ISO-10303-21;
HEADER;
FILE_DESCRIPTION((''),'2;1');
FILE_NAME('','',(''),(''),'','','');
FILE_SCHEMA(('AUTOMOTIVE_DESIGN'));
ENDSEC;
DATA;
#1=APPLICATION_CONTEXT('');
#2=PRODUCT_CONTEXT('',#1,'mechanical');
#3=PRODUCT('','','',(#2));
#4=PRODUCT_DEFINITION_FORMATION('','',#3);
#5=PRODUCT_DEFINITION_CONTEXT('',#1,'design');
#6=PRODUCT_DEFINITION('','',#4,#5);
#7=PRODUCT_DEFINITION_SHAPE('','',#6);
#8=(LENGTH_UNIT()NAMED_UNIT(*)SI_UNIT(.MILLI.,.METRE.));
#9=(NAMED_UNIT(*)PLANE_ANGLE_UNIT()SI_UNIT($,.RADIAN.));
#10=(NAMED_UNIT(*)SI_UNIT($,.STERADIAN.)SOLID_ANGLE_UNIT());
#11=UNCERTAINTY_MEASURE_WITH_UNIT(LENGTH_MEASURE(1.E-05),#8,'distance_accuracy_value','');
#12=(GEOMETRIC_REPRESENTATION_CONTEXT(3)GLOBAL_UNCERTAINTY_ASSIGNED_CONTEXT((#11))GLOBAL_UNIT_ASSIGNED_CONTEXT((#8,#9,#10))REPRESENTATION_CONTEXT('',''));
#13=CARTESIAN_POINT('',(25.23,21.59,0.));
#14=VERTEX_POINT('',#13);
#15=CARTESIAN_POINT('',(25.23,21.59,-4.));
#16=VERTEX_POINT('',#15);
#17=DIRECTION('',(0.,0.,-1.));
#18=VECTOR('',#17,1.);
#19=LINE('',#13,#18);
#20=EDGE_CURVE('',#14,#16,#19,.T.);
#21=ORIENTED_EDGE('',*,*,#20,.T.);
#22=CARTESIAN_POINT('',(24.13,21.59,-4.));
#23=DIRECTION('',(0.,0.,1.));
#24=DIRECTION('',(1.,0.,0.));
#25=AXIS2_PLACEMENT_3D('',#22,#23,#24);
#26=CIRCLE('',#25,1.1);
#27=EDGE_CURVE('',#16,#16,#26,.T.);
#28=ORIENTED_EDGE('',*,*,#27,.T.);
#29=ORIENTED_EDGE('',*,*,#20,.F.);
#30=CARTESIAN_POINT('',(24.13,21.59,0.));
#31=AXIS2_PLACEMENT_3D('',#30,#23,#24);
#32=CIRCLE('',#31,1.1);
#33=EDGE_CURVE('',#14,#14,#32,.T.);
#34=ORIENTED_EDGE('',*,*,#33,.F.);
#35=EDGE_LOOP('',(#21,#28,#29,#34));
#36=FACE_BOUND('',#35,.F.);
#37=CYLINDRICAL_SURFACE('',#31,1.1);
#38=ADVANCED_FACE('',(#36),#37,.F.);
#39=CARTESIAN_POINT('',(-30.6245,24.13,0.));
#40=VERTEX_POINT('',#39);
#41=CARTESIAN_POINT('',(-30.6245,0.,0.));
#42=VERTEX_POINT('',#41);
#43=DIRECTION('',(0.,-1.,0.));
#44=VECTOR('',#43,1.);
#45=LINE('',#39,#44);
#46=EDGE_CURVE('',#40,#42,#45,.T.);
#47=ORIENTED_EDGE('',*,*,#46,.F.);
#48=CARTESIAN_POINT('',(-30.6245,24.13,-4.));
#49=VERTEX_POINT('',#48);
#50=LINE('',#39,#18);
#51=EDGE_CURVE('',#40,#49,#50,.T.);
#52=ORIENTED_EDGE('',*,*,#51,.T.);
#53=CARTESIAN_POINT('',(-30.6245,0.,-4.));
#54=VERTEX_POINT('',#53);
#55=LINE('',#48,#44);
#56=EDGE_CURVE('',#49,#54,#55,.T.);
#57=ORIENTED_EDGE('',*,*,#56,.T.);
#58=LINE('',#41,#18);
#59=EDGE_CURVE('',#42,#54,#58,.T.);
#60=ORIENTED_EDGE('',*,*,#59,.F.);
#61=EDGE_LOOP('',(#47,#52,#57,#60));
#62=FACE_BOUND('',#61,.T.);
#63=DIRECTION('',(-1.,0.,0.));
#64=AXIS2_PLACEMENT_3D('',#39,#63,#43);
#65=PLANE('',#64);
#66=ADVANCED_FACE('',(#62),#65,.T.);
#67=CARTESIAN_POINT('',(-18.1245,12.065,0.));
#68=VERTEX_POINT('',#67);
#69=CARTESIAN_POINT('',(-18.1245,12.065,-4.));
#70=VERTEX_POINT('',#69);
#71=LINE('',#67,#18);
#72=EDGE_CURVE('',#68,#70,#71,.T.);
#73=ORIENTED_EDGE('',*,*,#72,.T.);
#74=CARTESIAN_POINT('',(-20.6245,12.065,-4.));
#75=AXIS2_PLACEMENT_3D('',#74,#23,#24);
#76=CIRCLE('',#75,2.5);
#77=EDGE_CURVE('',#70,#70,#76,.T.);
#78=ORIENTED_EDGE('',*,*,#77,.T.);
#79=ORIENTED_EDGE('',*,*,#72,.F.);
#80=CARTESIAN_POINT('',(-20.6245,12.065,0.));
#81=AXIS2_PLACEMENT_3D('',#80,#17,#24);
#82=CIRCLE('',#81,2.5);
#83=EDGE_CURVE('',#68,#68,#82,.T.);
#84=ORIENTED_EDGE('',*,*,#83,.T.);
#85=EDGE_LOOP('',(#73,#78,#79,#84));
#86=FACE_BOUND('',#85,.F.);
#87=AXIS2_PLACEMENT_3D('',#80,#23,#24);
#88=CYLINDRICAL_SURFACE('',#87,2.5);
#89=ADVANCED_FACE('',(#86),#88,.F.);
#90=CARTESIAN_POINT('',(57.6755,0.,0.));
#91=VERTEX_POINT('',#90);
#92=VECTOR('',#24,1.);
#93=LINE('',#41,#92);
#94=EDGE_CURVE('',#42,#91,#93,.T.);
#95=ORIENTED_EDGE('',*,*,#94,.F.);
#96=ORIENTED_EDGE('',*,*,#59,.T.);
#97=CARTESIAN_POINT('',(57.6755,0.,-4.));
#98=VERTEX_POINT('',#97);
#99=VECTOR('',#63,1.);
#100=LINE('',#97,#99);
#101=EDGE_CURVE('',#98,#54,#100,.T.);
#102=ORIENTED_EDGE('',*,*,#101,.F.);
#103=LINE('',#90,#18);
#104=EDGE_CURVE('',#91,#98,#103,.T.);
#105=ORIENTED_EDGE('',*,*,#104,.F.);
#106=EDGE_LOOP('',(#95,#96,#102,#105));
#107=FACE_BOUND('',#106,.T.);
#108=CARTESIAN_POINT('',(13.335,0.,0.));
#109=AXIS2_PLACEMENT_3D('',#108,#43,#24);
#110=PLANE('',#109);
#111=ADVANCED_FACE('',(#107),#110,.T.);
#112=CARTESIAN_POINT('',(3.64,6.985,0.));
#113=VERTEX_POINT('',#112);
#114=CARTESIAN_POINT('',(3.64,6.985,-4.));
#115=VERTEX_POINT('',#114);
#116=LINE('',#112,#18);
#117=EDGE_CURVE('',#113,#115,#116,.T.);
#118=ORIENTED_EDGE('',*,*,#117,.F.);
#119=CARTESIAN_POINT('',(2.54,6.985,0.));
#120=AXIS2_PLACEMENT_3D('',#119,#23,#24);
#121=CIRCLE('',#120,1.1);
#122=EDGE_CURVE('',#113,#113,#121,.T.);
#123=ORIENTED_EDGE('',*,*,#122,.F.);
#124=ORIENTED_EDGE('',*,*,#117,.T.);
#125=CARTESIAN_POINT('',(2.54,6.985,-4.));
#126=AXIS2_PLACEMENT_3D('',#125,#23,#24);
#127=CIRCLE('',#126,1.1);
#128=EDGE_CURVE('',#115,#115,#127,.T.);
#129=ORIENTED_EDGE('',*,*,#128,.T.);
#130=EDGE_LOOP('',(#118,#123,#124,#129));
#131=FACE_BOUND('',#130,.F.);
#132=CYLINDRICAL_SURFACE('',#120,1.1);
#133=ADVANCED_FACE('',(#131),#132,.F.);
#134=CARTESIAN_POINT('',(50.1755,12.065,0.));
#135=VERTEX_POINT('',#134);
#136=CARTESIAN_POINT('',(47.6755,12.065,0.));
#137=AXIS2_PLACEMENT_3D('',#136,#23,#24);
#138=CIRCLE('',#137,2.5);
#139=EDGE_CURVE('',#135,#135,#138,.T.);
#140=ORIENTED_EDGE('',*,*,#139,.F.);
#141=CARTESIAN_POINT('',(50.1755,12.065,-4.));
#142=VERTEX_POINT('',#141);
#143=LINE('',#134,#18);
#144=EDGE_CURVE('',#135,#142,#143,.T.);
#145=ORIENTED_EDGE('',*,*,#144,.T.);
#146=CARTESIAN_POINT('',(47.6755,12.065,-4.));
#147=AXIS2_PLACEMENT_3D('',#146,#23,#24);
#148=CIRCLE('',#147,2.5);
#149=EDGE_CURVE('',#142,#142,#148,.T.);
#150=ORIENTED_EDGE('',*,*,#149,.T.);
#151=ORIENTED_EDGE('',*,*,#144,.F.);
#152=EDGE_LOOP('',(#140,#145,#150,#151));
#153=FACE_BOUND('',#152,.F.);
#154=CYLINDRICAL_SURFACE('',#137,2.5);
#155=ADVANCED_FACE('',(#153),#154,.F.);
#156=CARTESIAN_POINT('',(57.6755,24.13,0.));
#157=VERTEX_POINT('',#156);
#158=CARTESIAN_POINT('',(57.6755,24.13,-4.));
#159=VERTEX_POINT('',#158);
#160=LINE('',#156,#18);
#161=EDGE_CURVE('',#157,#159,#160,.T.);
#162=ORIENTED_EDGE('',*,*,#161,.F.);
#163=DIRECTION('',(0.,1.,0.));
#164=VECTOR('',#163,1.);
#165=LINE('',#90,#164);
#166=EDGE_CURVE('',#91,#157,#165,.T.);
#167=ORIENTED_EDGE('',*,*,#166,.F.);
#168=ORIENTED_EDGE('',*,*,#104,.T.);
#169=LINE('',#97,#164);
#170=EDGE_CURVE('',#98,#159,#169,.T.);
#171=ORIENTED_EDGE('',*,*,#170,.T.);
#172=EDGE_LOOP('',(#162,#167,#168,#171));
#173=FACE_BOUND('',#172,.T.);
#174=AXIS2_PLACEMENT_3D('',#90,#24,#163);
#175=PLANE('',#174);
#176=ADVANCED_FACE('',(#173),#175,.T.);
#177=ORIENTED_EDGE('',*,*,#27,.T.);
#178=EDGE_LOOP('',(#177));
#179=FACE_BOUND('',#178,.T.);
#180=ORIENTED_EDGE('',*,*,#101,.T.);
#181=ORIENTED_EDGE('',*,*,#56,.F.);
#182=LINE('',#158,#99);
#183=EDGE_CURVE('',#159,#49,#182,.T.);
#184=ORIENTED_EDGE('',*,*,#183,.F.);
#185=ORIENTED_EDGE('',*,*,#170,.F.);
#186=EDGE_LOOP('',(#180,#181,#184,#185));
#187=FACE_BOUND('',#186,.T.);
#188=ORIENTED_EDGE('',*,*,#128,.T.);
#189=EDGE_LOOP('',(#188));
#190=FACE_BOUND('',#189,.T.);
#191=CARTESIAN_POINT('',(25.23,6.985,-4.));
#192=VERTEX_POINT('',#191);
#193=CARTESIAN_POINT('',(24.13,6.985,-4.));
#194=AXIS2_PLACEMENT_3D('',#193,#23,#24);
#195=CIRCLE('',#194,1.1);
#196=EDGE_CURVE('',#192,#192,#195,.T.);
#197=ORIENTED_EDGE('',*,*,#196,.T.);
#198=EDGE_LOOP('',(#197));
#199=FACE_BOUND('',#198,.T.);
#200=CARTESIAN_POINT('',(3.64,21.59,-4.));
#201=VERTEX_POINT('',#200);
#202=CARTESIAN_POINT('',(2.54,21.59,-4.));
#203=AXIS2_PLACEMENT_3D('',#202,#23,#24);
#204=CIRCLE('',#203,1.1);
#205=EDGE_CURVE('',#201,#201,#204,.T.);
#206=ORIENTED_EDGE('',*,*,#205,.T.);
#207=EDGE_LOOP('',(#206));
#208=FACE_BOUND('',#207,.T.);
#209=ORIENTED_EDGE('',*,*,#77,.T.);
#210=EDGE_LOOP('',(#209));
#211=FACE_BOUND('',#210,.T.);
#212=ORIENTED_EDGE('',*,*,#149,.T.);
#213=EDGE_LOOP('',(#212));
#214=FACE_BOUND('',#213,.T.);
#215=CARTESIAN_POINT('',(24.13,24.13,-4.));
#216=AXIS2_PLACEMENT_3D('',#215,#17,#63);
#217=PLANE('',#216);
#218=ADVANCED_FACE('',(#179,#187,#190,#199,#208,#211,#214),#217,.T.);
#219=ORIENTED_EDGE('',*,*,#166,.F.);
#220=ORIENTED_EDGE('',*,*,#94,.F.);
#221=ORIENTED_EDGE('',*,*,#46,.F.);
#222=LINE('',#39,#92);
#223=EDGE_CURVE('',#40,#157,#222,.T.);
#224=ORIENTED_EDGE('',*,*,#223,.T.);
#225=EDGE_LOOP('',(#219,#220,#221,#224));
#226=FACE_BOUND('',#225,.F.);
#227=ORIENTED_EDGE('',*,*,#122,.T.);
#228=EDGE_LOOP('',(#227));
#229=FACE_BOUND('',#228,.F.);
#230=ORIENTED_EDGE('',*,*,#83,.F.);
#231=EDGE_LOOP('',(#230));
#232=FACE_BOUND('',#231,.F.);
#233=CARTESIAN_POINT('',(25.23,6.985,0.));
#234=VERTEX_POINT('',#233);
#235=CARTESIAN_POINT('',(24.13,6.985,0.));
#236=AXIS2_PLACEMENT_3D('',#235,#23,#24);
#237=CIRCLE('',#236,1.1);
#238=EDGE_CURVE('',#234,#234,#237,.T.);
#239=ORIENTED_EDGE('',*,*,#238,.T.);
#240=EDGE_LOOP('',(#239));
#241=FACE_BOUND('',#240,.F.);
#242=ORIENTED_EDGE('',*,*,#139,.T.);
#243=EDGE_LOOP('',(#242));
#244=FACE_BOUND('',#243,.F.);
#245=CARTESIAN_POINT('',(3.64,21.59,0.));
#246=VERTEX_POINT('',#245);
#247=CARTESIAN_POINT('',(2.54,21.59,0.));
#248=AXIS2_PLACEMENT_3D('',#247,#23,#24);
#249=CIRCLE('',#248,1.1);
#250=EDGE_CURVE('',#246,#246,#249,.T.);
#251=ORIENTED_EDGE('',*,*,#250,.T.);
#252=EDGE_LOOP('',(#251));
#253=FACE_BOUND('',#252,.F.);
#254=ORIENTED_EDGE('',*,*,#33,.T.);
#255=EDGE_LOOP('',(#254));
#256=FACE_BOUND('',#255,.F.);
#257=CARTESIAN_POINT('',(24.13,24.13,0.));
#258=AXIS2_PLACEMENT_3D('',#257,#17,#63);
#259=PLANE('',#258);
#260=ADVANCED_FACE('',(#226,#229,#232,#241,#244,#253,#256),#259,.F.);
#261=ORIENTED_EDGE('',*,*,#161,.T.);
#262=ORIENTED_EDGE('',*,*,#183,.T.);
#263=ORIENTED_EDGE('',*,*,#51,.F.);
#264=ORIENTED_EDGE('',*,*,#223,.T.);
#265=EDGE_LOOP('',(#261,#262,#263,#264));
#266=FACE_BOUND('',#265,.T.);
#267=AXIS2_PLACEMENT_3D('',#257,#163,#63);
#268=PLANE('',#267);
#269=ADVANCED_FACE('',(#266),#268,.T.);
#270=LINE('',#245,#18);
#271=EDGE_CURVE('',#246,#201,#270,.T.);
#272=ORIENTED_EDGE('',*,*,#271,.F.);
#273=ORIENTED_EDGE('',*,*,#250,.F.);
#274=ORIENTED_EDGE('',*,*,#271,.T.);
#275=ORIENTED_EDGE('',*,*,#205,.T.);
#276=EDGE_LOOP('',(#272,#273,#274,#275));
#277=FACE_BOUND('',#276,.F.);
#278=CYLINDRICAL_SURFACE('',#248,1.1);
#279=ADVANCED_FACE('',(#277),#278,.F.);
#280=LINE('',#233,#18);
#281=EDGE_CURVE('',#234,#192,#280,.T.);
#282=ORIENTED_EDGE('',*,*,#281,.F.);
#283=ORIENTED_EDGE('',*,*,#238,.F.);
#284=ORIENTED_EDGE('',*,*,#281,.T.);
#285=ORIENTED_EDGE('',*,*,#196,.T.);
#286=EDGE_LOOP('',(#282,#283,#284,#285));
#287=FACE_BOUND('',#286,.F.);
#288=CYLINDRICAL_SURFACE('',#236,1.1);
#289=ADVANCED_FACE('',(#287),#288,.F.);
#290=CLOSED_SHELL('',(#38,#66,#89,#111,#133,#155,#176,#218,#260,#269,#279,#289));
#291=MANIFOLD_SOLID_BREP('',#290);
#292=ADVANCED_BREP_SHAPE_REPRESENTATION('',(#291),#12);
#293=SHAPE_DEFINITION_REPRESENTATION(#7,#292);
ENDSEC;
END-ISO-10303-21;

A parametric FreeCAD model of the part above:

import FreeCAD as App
import Part
import Sketcher
Q = App.Units.Quantity

doc = App.newDocument("Part")
body = doc.addObject("PartDesign::Body", "Body")

sketch1 = body.newObject("Sketcher::SketchObject", "Sketch")
sketch1.AttachmentSupport = (doc.getObject("XY_Plane"), [""])
sketch1.MapMode = "FlatFace"
sketch1.addGeometry(Part.LineSegment(App.Vector(58, 24, 0), App.Vector(58, 0, 0)), False)
sketch1.addGeometry(Part.LineSegment(App.Vector(58, 0, 0), App.Vector(-31, 0, 0)), False)
sketch1.addGeometry(Part.LineSegment(App.Vector(-31, 0, 0), App.Vector(-31, 24, 0)), False)
sketch1.addGeometry(Part.LineSegment(App.Vector(-31, 24, 0), App.Vector(58, 24, 0)), False)
sketch1.addConstraint(Sketcher.Constraint("Coincident", 0, 2, 1, 1))
sketch1.addConstraint(Sketcher.Constraint("Coincident", 1, 2, 2, 1))
sketch1.addConstraint(Sketcher.Constraint("Coincident", 2, 2, 3, 1))
sketch1.addConstraint(Sketcher.Constraint("Coincident", 3, 2, 0, 1))
sketch1.addConstraint(Sketcher.Constraint("Vertical", 0))
sketch1.addConstraint(Sketcher.Constraint("Horizontal", 1))
sketch1.addConstraint(Sketcher.Constraint("Vertical", 2))
sketch1.addConstraint(Sketcher.Constraint("Horizontal", 3))
sketch1.addConstraint(Sketcher.Constraint("PointOnObject", 0, 2, -1))
sketch1.addConstraint(Sketcher.Constraint("DistanceX", 1, 2, 1, 1, Q("88.3 mm")))
sketch1.addConstraint(Sketcher.Constraint("DistanceY", 0, 2, 0, 1, Q("24.13 mm")))
sketch1.addConstraint(Sketcher.Constraint("DistanceX", -1, 1, 0, 2, Q("57.6755 mm")))
pad1 = body.newObject("PartDesign::Pad", "Pad")
pad1.Profile = sketch1
pad1.Length = 4
pad1.Reversed = True

sketch2 = body.newObject("Sketcher::SketchObject", "Sketch001")
sketch2.AttachmentSupport = (doc.getObject("XY_Plane"), [""])
sketch2.MapMode = "FlatFace"
sketch2.addGeometry(Part.Circle(App.Vector(2.5, 7, 0), App.Vector(0, 0, 1), 1.1), False)
sketch2.addGeometry(Part.Circle(App.Vector(24.1, 7, 0), App.Vector(0, 0, 1), 1.1), False)
sketch2.addGeometry(Part.Circle(App.Vector(24.1, 21.6, 0), App.Vector(0, 0, 1), 1.1), False)
sketch2.addGeometry(Part.Circle(App.Vector(2.5, 21.6, 0), App.Vector(0, 0, 1), 1.1), False)
sketch2.addConstraint(Sketcher.Constraint("Equal", 0, 1))
sketch2.addConstraint(Sketcher.Constraint("Equal", 1, 2))
sketch2.addConstraint(Sketcher.Constraint("Equal", 2, 3))
sketch2.addConstraint(Sketcher.Constraint("Horizontal", 0, 3, 1, 3))
sketch2.addConstraint(Sketcher.Constraint("Horizontal", 2, 3, 3, 3))
sketch2.addConstraint(Sketcher.Constraint("Vertical", 1, 3, 2, 3))
sketch2.addConstraint(Sketcher.Constraint("Vertical", 0, 3, 3, 3))
sketch2.addConstraint(Sketcher.Constraint("Diameter", 0, Q("2.2 mm")))
sketch2.addConstraint(Sketcher.Constraint("DistanceX", -1, 1, 0, 3, Q("2.54 mm")))
sketch2.addConstraint(Sketcher.Constraint("DistanceX", -1, 1, 1, 3, Q("24.13 mm")))
sketch2.addConstraint(Sketcher.Constraint("DistanceY", -1, 1, 2, 3, Q("21.59 mm")))
sketch2.addConstraint(Sketcher.Constraint("DistanceY", -1, 1, 0, 3, Q("6.985 mm")))
pocket1 = body.newObject("PartDesign::Pocket", "Pocket")
pocket1.Profile = sketch2
pocket1.Length = 4

sketch3 = body.newObject("Sketcher::SketchObject", "Sketch002")
sketch3.AttachmentSupport = (doc.getObject("XY_Plane"), [""])
sketch3.MapMode = "FlatFace"
sketch3.addGeometry(Part.Circle(App.Vector(-20.6, 12.1, 0), App.Vector(0, 0, 1), 2.5), False)
sketch3.addGeometry(Part.Circle(App.Vector(47.7, 12.1, 0), App.Vector(0, 0, 1), 2.5), False)
sketch3.addConstraint(Sketcher.Constraint("Equal", 0, 1))
sketch3.addConstraint(Sketcher.Constraint("Horizontal", 0, 3, 1, 3))
sketch3.addConstraint(Sketcher.Constraint("Diameter", 0, Q("5 mm")))
sketch3.addConstraint(Sketcher.Constraint("DistanceX", 0, 3, 1, 3, Q("68.3 mm")))
sketch3.addConstraint(Sketcher.Constraint("DistanceY", -1, 1, 0, 3, Q("12.065 mm")))
sketch3.addConstraint(Sketcher.Constraint("DistanceX", 0, 3, -1, 1, Q("20.6245 mm")))
pocket2 = body.newObject("PartDesign::Pocket", "Pocket001")
pocket2.Profile = sketch3
pocket2.Length = 4

doc.recompute()
